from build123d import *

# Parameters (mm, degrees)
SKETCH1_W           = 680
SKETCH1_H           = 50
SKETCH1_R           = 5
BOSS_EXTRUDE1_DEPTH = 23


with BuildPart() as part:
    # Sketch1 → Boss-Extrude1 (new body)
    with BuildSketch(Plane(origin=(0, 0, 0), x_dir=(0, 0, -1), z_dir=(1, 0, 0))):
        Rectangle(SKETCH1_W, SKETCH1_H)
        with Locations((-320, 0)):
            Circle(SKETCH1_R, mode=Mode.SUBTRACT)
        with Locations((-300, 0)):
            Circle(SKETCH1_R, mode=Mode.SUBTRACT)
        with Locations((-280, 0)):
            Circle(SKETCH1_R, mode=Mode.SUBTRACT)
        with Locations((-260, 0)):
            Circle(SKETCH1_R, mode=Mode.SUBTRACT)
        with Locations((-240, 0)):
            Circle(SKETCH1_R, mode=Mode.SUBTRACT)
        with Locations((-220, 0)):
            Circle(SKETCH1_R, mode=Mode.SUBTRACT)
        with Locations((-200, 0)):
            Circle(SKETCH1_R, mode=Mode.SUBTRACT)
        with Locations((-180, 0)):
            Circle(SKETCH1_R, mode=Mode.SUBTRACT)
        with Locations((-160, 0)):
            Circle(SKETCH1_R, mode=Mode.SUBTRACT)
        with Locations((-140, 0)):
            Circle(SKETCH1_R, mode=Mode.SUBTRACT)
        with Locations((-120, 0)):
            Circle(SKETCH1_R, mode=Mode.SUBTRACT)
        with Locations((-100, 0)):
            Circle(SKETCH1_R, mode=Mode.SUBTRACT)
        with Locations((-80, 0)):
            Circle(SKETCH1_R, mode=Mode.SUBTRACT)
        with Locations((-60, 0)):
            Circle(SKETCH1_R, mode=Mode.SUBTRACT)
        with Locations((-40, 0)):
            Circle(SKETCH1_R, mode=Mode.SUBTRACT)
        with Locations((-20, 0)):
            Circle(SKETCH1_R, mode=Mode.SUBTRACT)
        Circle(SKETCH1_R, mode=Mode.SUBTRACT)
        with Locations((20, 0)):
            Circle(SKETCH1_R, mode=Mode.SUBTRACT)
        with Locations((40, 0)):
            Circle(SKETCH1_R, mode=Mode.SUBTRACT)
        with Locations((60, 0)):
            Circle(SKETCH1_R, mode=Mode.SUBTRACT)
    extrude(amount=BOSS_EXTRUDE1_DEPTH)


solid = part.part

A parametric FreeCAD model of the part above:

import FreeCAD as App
import Part
import Sketcher

V = App.Vector


def add_polygon(sketch, points):
    """Adds a closed chain of lines whose ends are joined by coincident constraints."""
    first, n = sketch.GeometryCount, len(points)
    for a, b in zip(points, points[1:] + points[:1]):
        sketch.addGeometry(Part.LineSegment(App.Vector(*a, 0), App.Vector(*b, 0)), False)
    for i in range(n):
        sketch.addConstraint(Sketcher.Constraint("Coincident", first + i, 2, first + (i + 1) % n, 1))

doc = App.newDocument("Part")
body = doc.addObject("PartDesign::Body", "Body")

sketch1 = body.newObject("Sketcher::SketchObject", "Sketch")
sketch1.AttachmentSupport = (doc.getObject("YZ_Plane"), [""])
sketch1.MapMode = "FlatFace"
add_polygon(sketch1, [(25, 340), (-25, 340), (-25, -340), (25, -340)])
sketch1.addGeometry(Part.Circle(V(0, 320, 0), V(0, 0, 1), 5), False)
sketch1.addGeometry(Part.Circle(V(0, 300, 0), V(0, 0, 1), 5), False)
sketch1.addGeometry(Part.Circle(V(0, 280, 0), V(0, 0, 1), 5), False)
sketch1.addGeometry(Part.Circle(V(0, 260, 0), V(0, 0, 1), 5), False)
sketch1.addGeometry(Part.Circle(V(0, 240, 0), V(0, 0, 1), 5), False)
sketch1.addGeometry(Part.Circle(V(0, 220, 0), V(0, 0, 1), 5), False)
sketch1.addGeometry(Part.Circle(V(0, 200, 0), V(0, 0, 1), 5), False)
sketch1.addGeometry(Part.Circle(V(0, 180, 0), V(0, 0, 1), 5), False)
sketch1.addGeometry(Part.Circle(V(0, 160, 0), V(0, 0, 1), 5), False)
sketch1.addGeometry(Part.Circle(V(0, 140, 0), V(0, 0, 1), 5), False)
sketch1.addGeometry(Part.Circle(V(0, 120, 0), V(0, 0, 1), 5), False)
sketch1.addGeometry(Part.Circle(V(0, 100, 0), V(0, 0, 1), 5), False)
sketch1.addGeometry(Part.Circle(V(0, 80, 0), V(0, 0, 1), 5), False)
sketch1.addGeometry(Part.Circle(V(0, 60, 0), V(0, 0, 1), 5), False)
sketch1.addGeometry(Part.Circle(V(0, 40, 0), V(0, 0, 1), 5), False)
sketch1.addGeometry(Part.Circle(V(0, 20, 0), V(0, 0, 1), 5), False)
sketch1.addGeometry(Part.Circle(V(0, 0, 0), V(0, 0, 1), 5), False)
sketch1.addGeometry(Part.Circle(V(0, -20, 0), V(0, 0, 1), 5), False)
sketch1.addGeometry(Part.Circle(V(0, -40, 0), V(0, 0, 1), 5), False)
sketch1.addGeometry(Part.Circle(V(0, -60, 0), V(0, 0, 1), 5), False)
sketch1.addConstraint([
    Sketcher.Constraint("Horizontal", 0),
    Sketcher.Constraint("Vertical", 1),
    Sketcher.Constraint("Horizontal", 2),
    Sketcher.Constraint("Vertical", 3),
    Sketcher.Constraint("Coincident", 20, 3, -1, 1),
    Sketcher.Constraint("Equal", 4, 5),
    Sketcher.Constraint("Equal", 5, 6),
    Sketcher.Constraint("Equal", 6, 7),
    Sketcher.Constraint("Equal", 7, 8),
    Sketcher.Constraint("Equal", 8, 9),
    Sketcher.Constraint("Equal", 9, 10),
    Sketcher.Constraint("Equal", 10, 11),
    Sketcher.Constraint("Equal", 11, 12),
    Sketcher.Constraint("Equal", 12, 13),
    Sketcher.Constraint("Equal", 13, 14),
    Sketcher.Constraint("Equal", 14, 15),
    Sketcher.Constraint("Equal", 15, 16),
    Sketcher.Constraint("Equal", 16, 17),
    Sketcher.Constraint("Equal", 17, 18),
    Sketcher.Constraint("Equal", 18, 19),
    Sketcher.Constraint("Equal", 19, 20),
    Sketcher.Constraint("Equal", 20, 21),
    Sketcher.Constraint("Equal", 21, 22),
    Sketcher.Constraint("Equal", 22, 23),
    Sketcher.Constraint("Symmetric", 19, 3, 21, 3, -1, 1),
    Sketcher.Constraint("Symmetric", 18, 3, 22, 3, -1, 1),
    Sketcher.Constraint("Symmetric", 17, 3, 23, 3, -1, 1),
    Sketcher.Constraint("Symmetric", 0, 2, 2, 2, -1, 1),
    Sketcher.Constraint("PointOnObject", 4, 3, -2),
    Sketcher.Constraint("PointOnObject", 5, 3, -2),
    Sketcher.Constraint("PointOnObject", 6, 3, -2),
    Sketcher.Constraint("PointOnObject", 7, 3, -2),
    Sketcher.Constraint("PointOnObject", 8, 3, -2),
    Sketcher.Constraint("PointOnObject", 9, 3, -2),
    Sketcher.Constraint("PointOnObject", 10, 3, -2),
    Sketcher.Constraint("PointOnObject", 11, 3, -2),
    Sketcher.Constraint("PointOnObject", 12, 3, -2),
    Sketcher.Constraint("PointOnObject", 13, 3, -2),
    Sketcher.Constraint("PointOnObject", 14, 3, -2),
    Sketcher.Constraint("PointOnObject", 15, 3, -2),
    Sketcher.Constraint("PointOnObject", 16, 3, -2),
    Sketcher.Constraint("PointOnObject", 17, 3, -2),
    Sketcher.Constraint("PointOnObject", 18, 3, -2),
    Sketcher.Constraint("PointOnObject", 19, 3, -2),
    Sketcher.Constraint("Diameter", 4, 10.0),
    Sketcher.Constraint("DistanceX", 0, 2, 0, 1, 50.0),
    Sketcher.Constraint("DistanceY", 1, 2, 1, 1, 680.0),
    Sketcher.Constraint("DistanceY", -1, 1, 4, 3, 320.0),
    Sketcher.Constraint("DistanceY", -1, 1, 5, 3, 300.0),
    Sketcher.Constraint("DistanceY", -1, 1, 6, 3, 280.0),
    Sketcher.Constraint("DistanceY", -1, 1, 7, 3, 260.0),
    Sketcher.Constraint("DistanceY", -1, 1, 8, 3, 240.0),
    Sketcher.Constraint("DistanceY", -1, 1, 9, 3, 220.0),
    Sketcher.Constraint("DistanceY", -1, 1, 10, 3, 200.0),
    Sketcher.Constraint("DistanceY", -1, 1, 11, 3, 180.0),
    Sketcher.Constraint("DistanceY", -1, 1, 12, 3, 160.0),
    Sketcher.Constraint("DistanceY", -1, 1, 13, 3, 140.0),
    Sketcher.Constraint("DistanceY", -1, 1, 14, 3, 120.0),
    Sketcher.Constraint("DistanceY", -1, 1, 15, 3, 100.0),
    Sketcher.Constraint("DistanceY", -1, 1, 16, 3, 80.0),
    Sketcher.Constraint("DistanceY", -1, 1, 17, 3, 60.0),
    Sketcher.Constraint("DistanceY", -1, 1, 18, 3, 40.0),
    Sketcher.Constraint("DistanceY", -1, 1, 19, 3, 20.0),
])
pad1 = body.newObject("PartDesign::Pad", "Pad")
pad1.Profile = sketch1
pad1.Length = 23

doc.recompute()
